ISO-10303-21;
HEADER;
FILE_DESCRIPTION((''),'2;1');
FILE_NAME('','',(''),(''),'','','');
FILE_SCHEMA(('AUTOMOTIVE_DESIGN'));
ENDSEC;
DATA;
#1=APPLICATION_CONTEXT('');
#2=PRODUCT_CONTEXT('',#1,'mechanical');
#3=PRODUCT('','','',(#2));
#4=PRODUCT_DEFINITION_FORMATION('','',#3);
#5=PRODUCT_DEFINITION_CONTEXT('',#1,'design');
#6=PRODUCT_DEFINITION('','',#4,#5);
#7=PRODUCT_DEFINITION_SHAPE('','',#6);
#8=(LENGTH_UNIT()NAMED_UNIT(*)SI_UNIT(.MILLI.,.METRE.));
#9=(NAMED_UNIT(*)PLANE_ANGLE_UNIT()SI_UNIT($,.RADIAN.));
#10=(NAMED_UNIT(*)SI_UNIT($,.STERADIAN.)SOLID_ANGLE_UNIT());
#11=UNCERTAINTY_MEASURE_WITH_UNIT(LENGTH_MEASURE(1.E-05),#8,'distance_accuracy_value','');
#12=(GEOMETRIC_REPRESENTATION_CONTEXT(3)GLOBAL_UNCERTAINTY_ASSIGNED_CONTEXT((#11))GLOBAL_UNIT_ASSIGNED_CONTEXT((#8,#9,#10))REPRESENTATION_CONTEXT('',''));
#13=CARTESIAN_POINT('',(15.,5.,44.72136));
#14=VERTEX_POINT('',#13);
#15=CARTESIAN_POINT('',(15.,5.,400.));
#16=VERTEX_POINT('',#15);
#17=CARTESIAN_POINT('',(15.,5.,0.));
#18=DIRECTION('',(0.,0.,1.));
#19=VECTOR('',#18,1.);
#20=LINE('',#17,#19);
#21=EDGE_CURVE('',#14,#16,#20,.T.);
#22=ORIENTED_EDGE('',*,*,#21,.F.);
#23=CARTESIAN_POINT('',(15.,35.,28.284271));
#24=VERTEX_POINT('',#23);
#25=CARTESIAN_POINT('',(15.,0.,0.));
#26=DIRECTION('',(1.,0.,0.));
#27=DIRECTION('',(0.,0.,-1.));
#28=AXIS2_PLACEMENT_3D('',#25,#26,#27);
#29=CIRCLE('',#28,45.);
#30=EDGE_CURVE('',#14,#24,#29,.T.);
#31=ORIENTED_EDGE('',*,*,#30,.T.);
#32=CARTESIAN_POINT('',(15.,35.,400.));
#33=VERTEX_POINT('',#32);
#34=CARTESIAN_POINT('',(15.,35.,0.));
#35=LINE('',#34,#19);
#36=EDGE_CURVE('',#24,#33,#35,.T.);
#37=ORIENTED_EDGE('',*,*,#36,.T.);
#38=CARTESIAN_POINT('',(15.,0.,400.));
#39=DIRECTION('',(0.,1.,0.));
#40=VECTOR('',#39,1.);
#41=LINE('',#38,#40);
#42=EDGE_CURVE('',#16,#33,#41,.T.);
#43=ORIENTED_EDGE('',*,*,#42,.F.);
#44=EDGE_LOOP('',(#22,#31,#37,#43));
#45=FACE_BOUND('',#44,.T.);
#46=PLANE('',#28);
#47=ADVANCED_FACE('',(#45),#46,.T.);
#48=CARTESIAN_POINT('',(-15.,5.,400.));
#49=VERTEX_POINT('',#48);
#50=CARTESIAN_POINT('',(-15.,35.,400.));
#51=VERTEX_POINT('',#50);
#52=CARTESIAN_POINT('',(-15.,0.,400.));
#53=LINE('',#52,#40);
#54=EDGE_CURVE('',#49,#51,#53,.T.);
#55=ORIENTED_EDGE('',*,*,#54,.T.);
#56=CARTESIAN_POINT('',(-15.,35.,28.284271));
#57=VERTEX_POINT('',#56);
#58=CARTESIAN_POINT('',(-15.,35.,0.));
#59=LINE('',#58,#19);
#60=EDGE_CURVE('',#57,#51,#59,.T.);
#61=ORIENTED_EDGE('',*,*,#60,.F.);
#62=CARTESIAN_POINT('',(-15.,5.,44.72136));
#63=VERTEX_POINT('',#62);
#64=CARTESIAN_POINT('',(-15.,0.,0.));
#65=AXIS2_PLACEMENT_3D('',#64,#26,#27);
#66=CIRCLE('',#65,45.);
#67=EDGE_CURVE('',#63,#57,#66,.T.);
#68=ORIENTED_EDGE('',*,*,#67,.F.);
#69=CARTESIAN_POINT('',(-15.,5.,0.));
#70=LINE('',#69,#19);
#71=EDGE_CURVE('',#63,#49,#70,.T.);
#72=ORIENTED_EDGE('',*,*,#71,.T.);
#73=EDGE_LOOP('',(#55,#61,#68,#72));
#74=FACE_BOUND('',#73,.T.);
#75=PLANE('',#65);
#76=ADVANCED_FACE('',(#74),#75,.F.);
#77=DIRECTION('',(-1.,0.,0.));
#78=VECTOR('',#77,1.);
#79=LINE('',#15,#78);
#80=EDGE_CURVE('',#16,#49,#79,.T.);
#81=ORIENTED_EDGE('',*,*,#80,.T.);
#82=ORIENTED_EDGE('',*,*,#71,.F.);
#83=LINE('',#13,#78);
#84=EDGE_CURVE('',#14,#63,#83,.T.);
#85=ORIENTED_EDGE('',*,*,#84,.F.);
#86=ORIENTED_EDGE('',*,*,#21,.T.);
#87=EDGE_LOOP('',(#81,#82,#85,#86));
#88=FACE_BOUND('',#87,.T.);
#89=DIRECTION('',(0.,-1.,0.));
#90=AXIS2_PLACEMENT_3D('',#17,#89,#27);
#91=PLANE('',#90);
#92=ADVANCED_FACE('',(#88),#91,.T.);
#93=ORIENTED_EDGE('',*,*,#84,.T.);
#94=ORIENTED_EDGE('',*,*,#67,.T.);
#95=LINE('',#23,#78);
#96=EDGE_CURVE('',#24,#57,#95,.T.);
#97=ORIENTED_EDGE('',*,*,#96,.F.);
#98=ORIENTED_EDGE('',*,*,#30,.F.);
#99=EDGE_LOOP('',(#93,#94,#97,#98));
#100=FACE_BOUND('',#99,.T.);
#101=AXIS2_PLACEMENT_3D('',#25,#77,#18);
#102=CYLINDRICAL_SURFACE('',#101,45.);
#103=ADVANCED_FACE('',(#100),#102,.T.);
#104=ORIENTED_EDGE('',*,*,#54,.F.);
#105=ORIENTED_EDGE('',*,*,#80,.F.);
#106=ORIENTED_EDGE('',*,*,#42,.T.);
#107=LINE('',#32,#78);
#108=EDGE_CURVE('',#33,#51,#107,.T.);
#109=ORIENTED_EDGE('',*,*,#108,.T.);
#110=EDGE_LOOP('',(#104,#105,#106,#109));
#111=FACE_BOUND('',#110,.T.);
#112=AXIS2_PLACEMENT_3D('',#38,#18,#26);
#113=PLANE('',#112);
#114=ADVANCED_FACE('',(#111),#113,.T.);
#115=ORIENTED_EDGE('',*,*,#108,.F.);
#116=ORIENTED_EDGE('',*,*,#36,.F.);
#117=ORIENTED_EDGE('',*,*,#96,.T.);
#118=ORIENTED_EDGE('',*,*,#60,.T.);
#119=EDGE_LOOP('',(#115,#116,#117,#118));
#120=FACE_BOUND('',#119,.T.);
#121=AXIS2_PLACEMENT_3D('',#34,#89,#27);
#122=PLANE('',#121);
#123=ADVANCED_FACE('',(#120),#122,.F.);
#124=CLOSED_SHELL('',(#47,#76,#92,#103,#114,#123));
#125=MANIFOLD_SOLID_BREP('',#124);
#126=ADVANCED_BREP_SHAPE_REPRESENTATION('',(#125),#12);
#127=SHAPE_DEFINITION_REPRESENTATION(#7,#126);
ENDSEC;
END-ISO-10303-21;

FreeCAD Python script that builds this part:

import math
import FreeCAD as App
import Part
import Sketcher

V = App.Vector
Q = App.Units.Quantity

doc = App.newDocument("Part")
body = doc.addObject("PartDesign::Body", "Body")

sketch1 = doc.addObject("Sketcher::SketchObject", "Sketch")
body.addObject(sketch1)
sketch1.AttachmentSupport = (doc.YZ_Plane, [""])
sketch1.MapMode = "FlatFace"
sketch1.addGeometry(Part.ArcOfCircle(Part.Circle(V(0, 0, 0), V(0, 0, 1), 45), math.radians(84), math.radians(399)), False)
sketch1.addGeometry(Part.LineSegment(V(35, 28, 0), V(35, 400, 0)), False)
sketch1.addGeometry(Part.LineSegment(V(35, 400, 0), V(5, 400, 0)), False)
sketch1.addGeometry(Part.LineSegment(V(5, 400, 0), V(5, 45, 0)), False)
sketch1.addConstraint(Sketcher.Constraint("Coincident", 0, 2, 1, 1))
sketch1.addConstraint(Sketcher.Constraint("Coincident", 1, 2, 2, 1))
sketch1.addConstraint(Sketcher.Constraint("Coincident", 2, 2, 3, 1))
sketch1.addConstraint(Sketcher.Constraint("Coincident", 3, 2, 0, 1))
sketch1.addConstraint(Sketcher.Constraint("Vertical", 1))
sketch1.addConstraint(Sketcher.Constraint("Horizontal", 2))
sketch1.addConstraint(Sketcher.Constraint("Vertical", 3))
sketch1.addConstraint(Sketcher.Constraint("Coincident", 0, 3, -1, 1))
sketch1.addConstraint(Sketcher.Constraint("Radius", 0, Q("45 mm")))
sketch1.addConstraint(Sketcher.Constraint("DistanceX", 2, 2, 2, 1, Q("30 mm")))
sketch1.addConstraint(Sketcher.Constraint("DistanceX", -1, 1, 0, 2, Q("35 mm")))
sketch1.addConstraint(Sketcher.Constraint("DistanceY", -1, 1, 1, 2, Q("400 mm")))
pad1 = doc.addObject("PartDesign::Pad", "Pad")
body.addObject(pad1)
pad1.Profile = sketch1
pad1.Length = 30
pad1.Midplane = True

doc.recompute()
